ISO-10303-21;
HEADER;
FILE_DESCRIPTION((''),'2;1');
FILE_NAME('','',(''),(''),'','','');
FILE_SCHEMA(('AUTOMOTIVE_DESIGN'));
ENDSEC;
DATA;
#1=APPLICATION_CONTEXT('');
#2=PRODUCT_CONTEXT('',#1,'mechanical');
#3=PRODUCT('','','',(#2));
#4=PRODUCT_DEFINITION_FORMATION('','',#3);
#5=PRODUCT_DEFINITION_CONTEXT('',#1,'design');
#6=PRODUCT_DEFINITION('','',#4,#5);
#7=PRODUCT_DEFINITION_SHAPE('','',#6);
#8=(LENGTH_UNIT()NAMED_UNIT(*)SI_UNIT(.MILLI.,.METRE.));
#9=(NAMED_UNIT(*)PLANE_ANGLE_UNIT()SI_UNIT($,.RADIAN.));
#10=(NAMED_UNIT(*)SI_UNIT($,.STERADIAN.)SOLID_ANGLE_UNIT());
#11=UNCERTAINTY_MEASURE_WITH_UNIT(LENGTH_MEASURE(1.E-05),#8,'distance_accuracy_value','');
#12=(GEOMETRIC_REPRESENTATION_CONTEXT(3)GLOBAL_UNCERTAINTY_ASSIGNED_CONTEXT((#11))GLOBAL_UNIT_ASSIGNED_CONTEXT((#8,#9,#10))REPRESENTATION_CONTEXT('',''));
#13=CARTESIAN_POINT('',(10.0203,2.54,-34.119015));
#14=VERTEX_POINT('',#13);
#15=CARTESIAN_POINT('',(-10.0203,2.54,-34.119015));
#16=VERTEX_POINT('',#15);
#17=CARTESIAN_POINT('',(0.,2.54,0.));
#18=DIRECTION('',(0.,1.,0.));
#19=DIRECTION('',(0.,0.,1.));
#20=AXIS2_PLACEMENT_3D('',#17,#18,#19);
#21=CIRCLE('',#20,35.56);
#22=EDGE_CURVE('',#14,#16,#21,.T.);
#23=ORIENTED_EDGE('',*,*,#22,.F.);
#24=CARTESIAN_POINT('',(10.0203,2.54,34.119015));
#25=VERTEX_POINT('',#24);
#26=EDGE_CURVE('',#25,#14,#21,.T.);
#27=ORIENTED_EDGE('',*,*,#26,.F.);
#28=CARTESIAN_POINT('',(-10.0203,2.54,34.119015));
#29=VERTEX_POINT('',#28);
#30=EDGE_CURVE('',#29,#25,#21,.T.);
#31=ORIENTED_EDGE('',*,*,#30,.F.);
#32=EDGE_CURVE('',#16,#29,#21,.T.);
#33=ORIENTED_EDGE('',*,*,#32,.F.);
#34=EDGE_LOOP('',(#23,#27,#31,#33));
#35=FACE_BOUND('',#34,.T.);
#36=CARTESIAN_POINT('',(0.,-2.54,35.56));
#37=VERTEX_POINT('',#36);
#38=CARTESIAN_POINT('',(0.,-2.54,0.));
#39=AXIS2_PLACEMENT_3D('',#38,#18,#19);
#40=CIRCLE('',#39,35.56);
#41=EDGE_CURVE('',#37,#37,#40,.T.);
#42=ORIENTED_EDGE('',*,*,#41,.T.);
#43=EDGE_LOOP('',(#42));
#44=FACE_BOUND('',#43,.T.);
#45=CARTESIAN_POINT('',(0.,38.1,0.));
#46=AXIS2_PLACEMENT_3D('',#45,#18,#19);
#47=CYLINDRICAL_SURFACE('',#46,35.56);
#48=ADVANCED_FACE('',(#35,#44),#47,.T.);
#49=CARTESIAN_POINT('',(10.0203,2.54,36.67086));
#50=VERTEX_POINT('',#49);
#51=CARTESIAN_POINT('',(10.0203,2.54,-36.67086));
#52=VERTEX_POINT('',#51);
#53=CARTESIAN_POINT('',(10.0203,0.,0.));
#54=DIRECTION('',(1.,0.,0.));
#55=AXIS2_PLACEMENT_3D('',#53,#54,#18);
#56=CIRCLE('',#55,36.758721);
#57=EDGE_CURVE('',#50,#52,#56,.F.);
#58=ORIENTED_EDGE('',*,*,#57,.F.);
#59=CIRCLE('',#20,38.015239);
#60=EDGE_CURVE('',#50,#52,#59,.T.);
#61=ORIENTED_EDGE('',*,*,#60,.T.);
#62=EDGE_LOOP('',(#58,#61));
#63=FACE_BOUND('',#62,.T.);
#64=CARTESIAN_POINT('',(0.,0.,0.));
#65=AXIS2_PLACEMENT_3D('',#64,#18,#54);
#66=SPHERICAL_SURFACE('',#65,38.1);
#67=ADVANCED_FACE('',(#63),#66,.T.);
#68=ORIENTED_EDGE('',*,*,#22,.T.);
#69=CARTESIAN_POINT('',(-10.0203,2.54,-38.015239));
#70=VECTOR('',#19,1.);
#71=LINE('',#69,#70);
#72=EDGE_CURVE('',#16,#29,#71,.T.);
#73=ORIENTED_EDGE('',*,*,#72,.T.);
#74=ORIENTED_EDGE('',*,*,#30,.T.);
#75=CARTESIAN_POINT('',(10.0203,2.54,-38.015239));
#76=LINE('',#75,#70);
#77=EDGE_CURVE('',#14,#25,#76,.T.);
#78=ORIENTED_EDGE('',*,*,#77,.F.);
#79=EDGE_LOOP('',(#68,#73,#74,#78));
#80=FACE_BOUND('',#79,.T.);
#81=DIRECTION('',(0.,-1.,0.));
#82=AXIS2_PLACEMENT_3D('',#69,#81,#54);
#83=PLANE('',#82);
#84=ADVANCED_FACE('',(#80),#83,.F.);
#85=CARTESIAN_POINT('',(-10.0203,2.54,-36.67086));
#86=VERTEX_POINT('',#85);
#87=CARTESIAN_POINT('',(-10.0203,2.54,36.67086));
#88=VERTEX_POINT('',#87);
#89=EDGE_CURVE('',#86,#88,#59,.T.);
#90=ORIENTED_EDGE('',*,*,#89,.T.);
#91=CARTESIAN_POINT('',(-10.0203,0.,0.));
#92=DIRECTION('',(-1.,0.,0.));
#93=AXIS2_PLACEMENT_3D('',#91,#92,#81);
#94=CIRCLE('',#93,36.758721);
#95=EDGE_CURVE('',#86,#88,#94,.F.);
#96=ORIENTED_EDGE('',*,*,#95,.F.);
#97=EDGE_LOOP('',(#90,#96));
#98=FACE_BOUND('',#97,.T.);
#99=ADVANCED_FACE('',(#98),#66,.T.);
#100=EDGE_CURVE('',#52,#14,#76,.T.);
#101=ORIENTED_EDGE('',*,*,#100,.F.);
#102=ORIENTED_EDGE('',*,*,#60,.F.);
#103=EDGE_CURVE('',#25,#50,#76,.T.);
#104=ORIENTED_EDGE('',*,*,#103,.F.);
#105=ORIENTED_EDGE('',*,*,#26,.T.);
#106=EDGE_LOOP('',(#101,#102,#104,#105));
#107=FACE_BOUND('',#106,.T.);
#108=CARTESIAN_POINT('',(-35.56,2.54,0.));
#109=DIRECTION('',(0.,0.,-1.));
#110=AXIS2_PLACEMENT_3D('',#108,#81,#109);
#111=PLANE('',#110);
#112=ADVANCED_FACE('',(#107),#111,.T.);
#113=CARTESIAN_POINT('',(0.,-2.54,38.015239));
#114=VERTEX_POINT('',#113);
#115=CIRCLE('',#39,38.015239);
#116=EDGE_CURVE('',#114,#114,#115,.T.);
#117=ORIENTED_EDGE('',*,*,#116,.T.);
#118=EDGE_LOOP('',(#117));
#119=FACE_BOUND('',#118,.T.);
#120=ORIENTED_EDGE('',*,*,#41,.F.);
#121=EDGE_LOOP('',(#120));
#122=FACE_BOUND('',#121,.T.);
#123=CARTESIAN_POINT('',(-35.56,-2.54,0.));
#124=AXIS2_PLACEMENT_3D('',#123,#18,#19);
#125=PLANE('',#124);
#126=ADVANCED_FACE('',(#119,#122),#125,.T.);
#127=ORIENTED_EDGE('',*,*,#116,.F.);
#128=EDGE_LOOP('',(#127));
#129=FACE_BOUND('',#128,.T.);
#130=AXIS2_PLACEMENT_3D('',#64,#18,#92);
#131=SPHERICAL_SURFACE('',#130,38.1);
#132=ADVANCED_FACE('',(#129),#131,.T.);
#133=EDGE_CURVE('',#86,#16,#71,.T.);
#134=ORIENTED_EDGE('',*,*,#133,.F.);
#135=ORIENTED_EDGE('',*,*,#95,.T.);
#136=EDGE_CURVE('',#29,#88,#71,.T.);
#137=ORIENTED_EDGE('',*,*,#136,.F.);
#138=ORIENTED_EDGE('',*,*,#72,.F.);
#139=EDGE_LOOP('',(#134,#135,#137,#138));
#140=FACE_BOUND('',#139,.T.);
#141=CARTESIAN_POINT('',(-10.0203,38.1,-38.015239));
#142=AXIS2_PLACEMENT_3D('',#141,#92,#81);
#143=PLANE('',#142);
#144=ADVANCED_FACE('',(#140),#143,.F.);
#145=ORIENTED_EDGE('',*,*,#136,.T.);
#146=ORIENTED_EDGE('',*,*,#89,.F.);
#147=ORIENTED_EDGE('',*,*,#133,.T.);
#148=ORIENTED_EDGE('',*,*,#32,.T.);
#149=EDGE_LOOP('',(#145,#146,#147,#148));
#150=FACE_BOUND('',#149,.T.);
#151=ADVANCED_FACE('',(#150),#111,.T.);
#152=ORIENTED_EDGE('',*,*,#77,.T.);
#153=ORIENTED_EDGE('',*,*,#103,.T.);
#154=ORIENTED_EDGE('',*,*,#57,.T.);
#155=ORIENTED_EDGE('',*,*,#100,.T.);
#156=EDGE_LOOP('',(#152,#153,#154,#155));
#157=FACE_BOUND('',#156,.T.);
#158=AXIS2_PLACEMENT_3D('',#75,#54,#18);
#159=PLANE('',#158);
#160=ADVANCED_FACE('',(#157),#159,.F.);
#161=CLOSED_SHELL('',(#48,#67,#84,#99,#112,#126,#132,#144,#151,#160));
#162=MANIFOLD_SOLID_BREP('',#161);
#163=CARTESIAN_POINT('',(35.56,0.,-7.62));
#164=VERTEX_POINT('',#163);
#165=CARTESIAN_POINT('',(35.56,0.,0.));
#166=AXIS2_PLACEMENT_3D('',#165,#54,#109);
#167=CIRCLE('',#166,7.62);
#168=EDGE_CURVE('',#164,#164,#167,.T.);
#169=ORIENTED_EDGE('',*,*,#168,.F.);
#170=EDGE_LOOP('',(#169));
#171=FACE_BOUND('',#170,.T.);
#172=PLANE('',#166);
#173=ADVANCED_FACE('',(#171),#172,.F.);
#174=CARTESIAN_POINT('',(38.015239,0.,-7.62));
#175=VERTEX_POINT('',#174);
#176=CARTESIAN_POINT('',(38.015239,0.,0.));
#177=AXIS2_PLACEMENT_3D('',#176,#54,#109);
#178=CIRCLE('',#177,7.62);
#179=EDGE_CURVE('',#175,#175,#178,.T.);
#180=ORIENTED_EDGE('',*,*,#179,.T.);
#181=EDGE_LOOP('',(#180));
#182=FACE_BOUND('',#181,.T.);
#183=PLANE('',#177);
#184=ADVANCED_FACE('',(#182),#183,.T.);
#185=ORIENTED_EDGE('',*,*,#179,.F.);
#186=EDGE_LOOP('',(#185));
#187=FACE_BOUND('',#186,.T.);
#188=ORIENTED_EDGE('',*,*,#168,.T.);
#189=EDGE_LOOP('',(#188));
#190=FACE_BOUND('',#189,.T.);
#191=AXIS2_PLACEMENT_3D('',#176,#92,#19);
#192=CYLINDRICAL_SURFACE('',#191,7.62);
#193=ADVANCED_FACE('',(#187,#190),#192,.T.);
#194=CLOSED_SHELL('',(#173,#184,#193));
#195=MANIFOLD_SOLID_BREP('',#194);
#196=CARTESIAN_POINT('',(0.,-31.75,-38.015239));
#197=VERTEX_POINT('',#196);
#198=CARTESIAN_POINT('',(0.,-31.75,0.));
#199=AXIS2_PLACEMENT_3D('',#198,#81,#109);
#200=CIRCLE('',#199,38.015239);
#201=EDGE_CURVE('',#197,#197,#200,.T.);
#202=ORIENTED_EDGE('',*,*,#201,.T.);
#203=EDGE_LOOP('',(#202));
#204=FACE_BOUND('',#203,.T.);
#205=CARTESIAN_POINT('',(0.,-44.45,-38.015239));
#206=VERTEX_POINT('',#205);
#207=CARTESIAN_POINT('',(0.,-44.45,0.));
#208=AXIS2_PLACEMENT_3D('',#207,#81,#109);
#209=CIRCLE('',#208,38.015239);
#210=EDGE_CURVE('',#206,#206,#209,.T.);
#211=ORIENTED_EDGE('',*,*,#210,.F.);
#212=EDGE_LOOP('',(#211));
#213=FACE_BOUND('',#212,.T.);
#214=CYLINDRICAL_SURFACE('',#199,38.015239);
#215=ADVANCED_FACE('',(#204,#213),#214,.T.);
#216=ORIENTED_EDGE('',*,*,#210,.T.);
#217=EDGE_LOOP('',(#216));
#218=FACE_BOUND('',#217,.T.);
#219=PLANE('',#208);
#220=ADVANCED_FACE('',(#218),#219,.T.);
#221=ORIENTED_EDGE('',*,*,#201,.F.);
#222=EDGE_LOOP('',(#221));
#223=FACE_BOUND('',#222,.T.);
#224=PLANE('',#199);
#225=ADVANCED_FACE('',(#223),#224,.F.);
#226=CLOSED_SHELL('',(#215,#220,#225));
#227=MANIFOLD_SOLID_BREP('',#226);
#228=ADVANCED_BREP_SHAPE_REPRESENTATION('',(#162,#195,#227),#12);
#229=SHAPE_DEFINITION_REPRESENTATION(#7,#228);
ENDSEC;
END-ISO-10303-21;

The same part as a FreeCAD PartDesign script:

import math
import FreeCAD as App
import Part
import Sketcher

V = App.Vector
Q = App.Units.Quantity


def add_polygon(sketch, points):
    """Adds a closed chain of lines whose ends are joined by coincident constraints."""
    first, n = sketch.GeometryCount, len(points)
    for a, b in zip(points, points[1:] + points[:1]):
        sketch.addGeometry(Part.LineSegment(App.Vector(*a, 0), App.Vector(*b, 0)), False)
    for i in range(n):
        sketch.addConstraint(Sketcher.Constraint("Coincident", first + i, 2, first + (i + 1) % n, 1))

doc = App.newDocument("Part")
body = doc.addObject("PartDesign::Body", "Body")

sketch1 = body.newObject("Sketcher::SketchObject", "Sketch")
sketch1.AttachmentSupport = (doc.getObject("XY_Plane"), [""])
sketch1.MapMode = "FlatFace"
sketch1.addGeometry([
    Part.LineSegment(V(0, -38.1, 0), V(0, 38.1, 0)),
    Part.ArcOfCircle(Part.Circle(V(0, 0, 0), V(0, 0, 1), 38.1), math.radians(90), math.radians(176)),
    Part.LineSegment(V(-38, 2.5, 0), V(-35.6, 2.5, 0)),
    Part.LineSegment(V(-35.6, 2.5, 0), V(-35.6, -2.5, 0)),
    Part.LineSegment(V(-35.6, -2.5, 0), V(-38, -2.5, 0)),
    Part.ArcOfCircle(Part.Circle(V(0, 0, 0), V(0, 0, 1), 38.1), math.radians(-176), math.radians(-90)),
], False)
sketch1.addConstraint([
    Sketcher.Constraint("Coincident", 0, 2, 1, 1),
    Sketcher.Constraint("Coincident", 1, 2, 2, 1),
    Sketcher.Constraint("Coincident", 2, 2, 3, 1),
    Sketcher.Constraint("Coincident", 3, 2, 4, 1),
    Sketcher.Constraint("Coincident", 4, 2, 5, 1),
    Sketcher.Constraint("Coincident", 5, 2, 0, 1),
    Sketcher.Constraint("Vertical", 0),
    Sketcher.Constraint("Horizontal", 2),
    Sketcher.Constraint("Vertical", 3),
    Sketcher.Constraint("Horizontal", 4),
    Sketcher.Constraint("Coincident", 1, 3, -1, 1),
    Sketcher.Constraint("Coincident", 5, 3, -1, 1),
    Sketcher.Constraint("Equal", 1, 5),
    Sketcher.Constraint("PointOnObject", 0, 2, -2),
    Sketcher.Constraint("Vertical", 1, 2, 4, 2),
    Sketcher.Constraint("Radius", 1, Q("1.5 in")),
    Sketcher.Constraint("DistanceY", 3, 2, 3, 1, Q("0.2 in")),
    Sketcher.Constraint("DistanceX", 2, 2, -1, 1, Q("1.4 in")),
])
revolution = body.newObject("PartDesign::Revolution", "Revolution")
revolution.Profile = sketch1
revolution.ReferenceAxis = (sketch1, ["V_Axis"])
revolution.Angle = 360

sketch2 = body.newObject("Sketcher::SketchObject", "Sketch001")
sketch2.AttachmentSupport = (doc.getObject("XY_Plane"), [""])
sketch2.MapMode = "FlatFace"
add_polygon(sketch2, [(-10, 38), (-10, 3), (10, 3), (10, 38)])
sketch2.addConstraint([
    Sketcher.Constraint("Vertical", 0),
    Sketcher.Constraint("Horizontal", 1),
    Sketcher.Constraint("Vertical", 2),
    Sketcher.Constraint("Horizontal", 3),
    Sketcher.Constraint("DistanceY", 0, 2, 0, 1, Q("1.4 in")),
    Sketcher.Constraint("DistanceY", -1, 1, 0, 2, Q("0.1 in")),
    Sketcher.Constraint("DistanceX", 1, 1, 1, 2, Q("0.789 in")),
    Sketcher.Constraint("DistanceX", 0, 2, -1, 1, Q("0.3945 in")),
])
pocket1 = body.newObject("PartDesign::Pocket", "Pocket")
pocket1.Profile = sketch2
pocket1.Type = "ThroughAll"
pocket1.Midplane = True
body2 = doc.addObject("PartDesign::Body", "Body001")

sketch3 = body2.newObject("Sketcher::SketchObject", "Sketch002")
sketch3.AttachmentSupport = (doc.getObject("YZ_Plane001"), [""])
sketch3.MapMode = "FlatFace"
sketch3.AttachmentOffset = App.Placement(V(0, 0, 1.4 * 25.4), App.Rotation())
sketch3.addGeometry(Part.Circle(V(0, 0, 0), V(0, 0, 1), 8), False)
sketch3.addConstraint([
    Sketcher.Constraint("Coincident", 0, 3, -1, 1),
    Sketcher.Constraint("Diameter", 0, Q("0.6 in")),
])
pad1 = body2.newObject("PartDesign::Pad", "Pad")
pad1.Profile = sketch3
pad1.Length = 2.455239
body3 = doc.addObject("PartDesign::Body", "Body002")

sketch4 = body3.newObject("Sketcher::SketchObject", "Sketch003")
sketch4.AttachmentSupport = (doc.getObject("XZ_Plane002"), [""])
sketch4.MapMode = "FlatFace"
sketch4.AttachmentOffset = App.Placement(V(0, 0, 1.5 * 25.4), App.Rotation())
sketch4.addGeometry(Part.Circle(V(0, 0, 0), V(0, 0, 1), 38), False)
sketch4.addConstraint([
    Sketcher.Constraint("Coincident", 0, 3, -1, 1),
    Sketcher.Constraint("Diameter", 0, Q("76.030478 mm")),
])
pad2 = body3.newObject("PartDesign::Pad", "Pad001")
pad2.Profile = sketch4
pad2.Type = "TwoLengths"
pad2.Length = Q("0.25 in")
pad2.Length2 = Q("0.25 in")

doc.recompute()
